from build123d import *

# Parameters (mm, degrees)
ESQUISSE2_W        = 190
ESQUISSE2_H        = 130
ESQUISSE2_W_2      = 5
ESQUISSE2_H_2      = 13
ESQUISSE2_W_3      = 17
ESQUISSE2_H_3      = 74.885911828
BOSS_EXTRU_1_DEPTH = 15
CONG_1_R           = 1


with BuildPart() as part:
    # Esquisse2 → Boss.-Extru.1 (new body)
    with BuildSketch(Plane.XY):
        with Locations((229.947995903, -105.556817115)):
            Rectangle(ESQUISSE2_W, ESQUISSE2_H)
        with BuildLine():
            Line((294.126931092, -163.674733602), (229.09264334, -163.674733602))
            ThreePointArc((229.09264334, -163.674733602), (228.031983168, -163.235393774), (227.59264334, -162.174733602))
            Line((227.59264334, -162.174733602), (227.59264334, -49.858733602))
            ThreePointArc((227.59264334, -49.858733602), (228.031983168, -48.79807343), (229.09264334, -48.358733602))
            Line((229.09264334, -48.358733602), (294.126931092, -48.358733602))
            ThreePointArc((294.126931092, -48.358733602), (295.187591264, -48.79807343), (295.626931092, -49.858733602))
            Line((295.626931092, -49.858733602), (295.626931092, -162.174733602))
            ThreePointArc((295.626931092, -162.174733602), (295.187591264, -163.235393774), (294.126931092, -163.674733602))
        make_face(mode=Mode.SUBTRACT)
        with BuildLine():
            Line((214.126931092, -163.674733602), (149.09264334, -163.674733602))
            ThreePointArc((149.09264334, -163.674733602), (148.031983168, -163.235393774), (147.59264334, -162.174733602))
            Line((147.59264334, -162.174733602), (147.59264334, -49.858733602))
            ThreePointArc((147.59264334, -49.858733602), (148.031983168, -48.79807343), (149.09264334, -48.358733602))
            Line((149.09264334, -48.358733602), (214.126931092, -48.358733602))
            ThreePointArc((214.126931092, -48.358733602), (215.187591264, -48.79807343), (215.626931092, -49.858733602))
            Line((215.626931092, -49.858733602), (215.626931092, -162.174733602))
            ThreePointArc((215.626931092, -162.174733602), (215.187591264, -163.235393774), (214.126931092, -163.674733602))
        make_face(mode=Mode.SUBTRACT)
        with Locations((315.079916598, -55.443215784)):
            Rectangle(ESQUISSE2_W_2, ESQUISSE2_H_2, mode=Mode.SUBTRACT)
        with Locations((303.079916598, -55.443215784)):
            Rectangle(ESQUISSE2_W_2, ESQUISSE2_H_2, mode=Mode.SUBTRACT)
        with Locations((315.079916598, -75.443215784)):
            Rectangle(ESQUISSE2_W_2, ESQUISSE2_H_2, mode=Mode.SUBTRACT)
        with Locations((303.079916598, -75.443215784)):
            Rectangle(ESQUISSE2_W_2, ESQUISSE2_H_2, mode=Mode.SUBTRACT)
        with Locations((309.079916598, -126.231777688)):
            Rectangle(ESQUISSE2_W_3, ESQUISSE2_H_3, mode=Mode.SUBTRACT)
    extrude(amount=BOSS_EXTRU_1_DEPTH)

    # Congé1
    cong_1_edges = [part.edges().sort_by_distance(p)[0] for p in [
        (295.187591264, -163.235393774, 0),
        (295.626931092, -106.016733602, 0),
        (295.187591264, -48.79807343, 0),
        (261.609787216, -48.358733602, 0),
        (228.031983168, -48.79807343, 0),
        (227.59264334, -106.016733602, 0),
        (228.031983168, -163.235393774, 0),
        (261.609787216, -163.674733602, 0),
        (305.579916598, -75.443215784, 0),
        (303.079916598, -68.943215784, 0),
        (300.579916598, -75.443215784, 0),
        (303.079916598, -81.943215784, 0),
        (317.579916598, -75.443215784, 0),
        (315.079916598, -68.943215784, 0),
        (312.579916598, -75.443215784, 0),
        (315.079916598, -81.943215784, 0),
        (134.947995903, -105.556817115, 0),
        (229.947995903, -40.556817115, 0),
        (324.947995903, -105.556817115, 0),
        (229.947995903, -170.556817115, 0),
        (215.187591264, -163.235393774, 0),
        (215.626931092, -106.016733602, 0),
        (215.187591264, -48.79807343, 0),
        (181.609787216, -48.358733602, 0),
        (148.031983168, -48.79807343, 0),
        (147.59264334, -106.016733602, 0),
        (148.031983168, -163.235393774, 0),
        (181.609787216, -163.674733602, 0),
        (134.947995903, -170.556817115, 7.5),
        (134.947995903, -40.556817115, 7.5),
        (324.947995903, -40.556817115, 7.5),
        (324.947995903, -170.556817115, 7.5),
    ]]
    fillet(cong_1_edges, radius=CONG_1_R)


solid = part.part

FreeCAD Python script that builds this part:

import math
import FreeCAD as App
import Part
import Sketcher

V = App.Vector


def edges_at(feature, points):
    """Names of the edges that pass closest to the given points."""
    edges = feature.Shape.Edges
    near = lambda p: min(range(len(edges)), key=lambda i: edges[i].distToShape(Part.Vertex(*p))[0])
    return sorted({f"Edge{near(p) + 1}" for p in points})


def add_polygon(sketch, points):
    """Adds a closed chain of lines whose ends are joined by coincident constraints."""
    first, n = sketch.GeometryCount, len(points)
    for a, b in zip(points, points[1:] + points[:1]):
        sketch.addGeometry(Part.LineSegment(App.Vector(*a, 0), App.Vector(*b, 0)), False)
    for i in range(n):
        sketch.addConstraint(Sketcher.Constraint("Coincident", first + i, 2, first + (i + 1) % n, 1))

doc = App.newDocument("Part")
body = doc.addObject("PartDesign::Body", "Body")

# Sketch on XY plane
sketch1 = body.newObject("Sketcher::SketchObject", "Sketch")
sketch1.AttachmentSupport = (doc.getObject("XY_Plane"), [""])
sketch1.MapMode = "FlatFace"
add_polygon(sketch1, [(134.9, -40.6), (134.9, -170.6), (324.9, -170.6), (324.9, -40.6)])  # lines 0-3
sketch1.addGeometry(Part.ArcOfCircle(Part.Circle(V(214.1, -162.2, 0), V(0, 0, 1), 1.5), math.radians(-90), math.radians(0)), False)  # 4
sketch1.addGeometry(Part.LineSegment(V(214.1, -163.7, 0), V(149.1, -163.7, 0)), False)  # 5
sketch1.addGeometry(Part.ArcOfCircle(Part.Circle(V(149.1, -162.2, 0), V(0, 0, 1), 1.5), math.radians(180), math.radians(270)), False)  # 6
sketch1.addGeometry(Part.LineSegment(V(147.6, -162.2, 0), V(147.6, -49.9, 0)), False)  # 7
sketch1.addGeometry(Part.ArcOfCircle(Part.Circle(V(149.1, -49.9, 0), V(0, 0, 1), 1.5), math.radians(90), math.radians(180)), False)  # 8
sketch1.addGeometry(Part.LineSegment(V(149.1, -48.4, 0), V(214.1, -48.4, 0)), False)  # 9
sketch1.addGeometry(Part.ArcOfCircle(Part.Circle(V(214.1, -49.9, 0), V(0, 0, 1), 1.5), math.radians(0), math.radians(90)), False)  # 10
sketch1.addGeometry(Part.LineSegment(V(215.6, -49.9, 0), V(215.6, -162.2, 0)), False)  # 11
sketch1.addGeometry(Part.ArcOfCircle(Part.Circle(V(294.1, -162.2, 0), V(0, 0, 1), 1.5), math.radians(-90), math.radians(0)), False)  # 12
sketch1.addGeometry(Part.LineSegment(V(294.1, -163.7, 0), V(229.1, -163.7, 0)), False)  # 13
sketch1.addGeometry(Part.ArcOfCircle(Part.Circle(V(229.1, -162.2, 0), V(0, 0, 1), 1.5), math.radians(180), math.radians(270)), False)  # 14
sketch1.addGeometry(Part.LineSegment(V(227.6, -162.2, 0), V(227.6, -49.9, 0)), False)  # 15
sketch1.addGeometry(Part.ArcOfCircle(Part.Circle(V(229.1, -49.9, 0), V(0, 0, 1), 1.5), math.radians(90), math.radians(180)), False)  # 16
sketch1.addGeometry(Part.LineSegment(V(229.1, -48.4, 0), V(294.1, -48.4, 0)), False)  # 17
sketch1.addGeometry(Part.ArcOfCircle(Part.Circle(V(294.1, -49.9, 0), V(0, 0, 1), 1.5), math.radians(0), math.radians(90)), False)  # 18
sketch1.addGeometry(Part.LineSegment(V(295.6, -49.9, 0), V(295.6, -162.2, 0)), False)  # 19
add_polygon(sketch1, [(317.6, -163.7), (300.6, -163.7), (300.6, -88.8), (317.6, -88.8)])  # lines 20-23
add_polygon(sketch1, [(305.6, -81.9), (300.6, -81.9), (300.6, -68.9), (305.6, -68.9)])  # lines 24-27
add_polygon(sketch1, [(317.6, -81.9), (312.6, -81.9), (312.6, -68.9), (317.6, -68.9)])  # lines 28-31
add_polygon(sketch1, [(305.6, -61.9), (300.6, -61.9), (300.6, -48.9), (305.6, -48.9)])  # lines 32-35
add_polygon(sketch1, [(317.6, -61.9), (312.6, -61.9), (312.6, -48.9), (317.6, -48.9)])  # lines 36-39
sketch1.addConstraint(Sketcher.Constraint("Tangent", 4, 1, 5, 1))
sketch1.addConstraint(Sketcher.Constraint("Tangent", 5, 2, 6, 2))
sketch1.addConstraint(Sketcher.Constraint("Tangent", 6, 1, 7, 1))
sketch1.addConstraint(Sketcher.Constraint("Tangent", 7, 2, 8, 2))
sketch1.addConstraint(Sketcher.Constraint("Tangent", 8, 1, 9, 1))
sketch1.addConstraint(Sketcher.Constraint("Tangent", 9, 2, 10, 2))
sketch1.addConstraint(Sketcher.Constraint("Tangent", 10, 1, 11, 1))
sketch1.addConstraint(Sketcher.Constraint("Tangent", 11, 2, 4, 2))
sketch1.addConstraint(Sketcher.Constraint("Tangent", 12, 1, 13, 1))
sketch1.addConstraint(Sketcher.Constraint("Tangent", 13, 2, 14, 2))
sketch1.addConstraint(Sketcher.Constraint("Tangent", 14, 1, 15, 1))
sketch1.addConstraint(Sketcher.Constraint("Tangent", 15, 2, 16, 2))
sketch1.addConstraint(Sketcher.Constraint("Tangent", 16, 1, 17, 1))
sketch1.addConstraint(Sketcher.Constraint("Tangent", 17, 2, 18, 2))
sketch1.addConstraint(Sketcher.Constraint("Tangent", 18, 1, 19, 1))
sketch1.addConstraint(Sketcher.Constraint("Tangent", 19, 2, 12, 2))
sketch1.addConstraint(Sketcher.Constraint("Vertical", 0))
sketch1.addConstraint(Sketcher.Constraint("Horizontal", 1))
sketch1.addConstraint(Sketcher.Constraint("Vertical", 2))
sketch1.addConstraint(Sketcher.Constraint("Horizontal", 3))
sketch1.addConstraint(Sketcher.Constraint("Horizontal", 5))
sketch1.addConstraint(Sketcher.Constraint("Vertical", 7))
sketch1.addConstraint(Sketcher.Constraint("Horizontal", 9))
sketch1.addConstraint(Sketcher.Constraint("Vertical", 11))
sketch1.addConstraint(Sketcher.Constraint("Horizontal", 13))
sketch1.addConstraint(Sketcher.Constraint("Vertical", 15))
sketch1.addConstraint(Sketcher.Constraint("Horizontal", 17))
sketch1.addConstraint(Sketcher.Constraint("Vertical", 19))
sketch1.addConstraint(Sketcher.Constraint("Horizontal", 20))
sketch1.addConstraint(Sketcher.Constraint("Vertical", 21))
sketch1.addConstraint(Sketcher.Constraint("Horizontal", 22))
sketch1.addConstraint(Sketcher.Constraint("Vertical", 23))
sketch1.addConstraint(Sketcher.Constraint("Horizontal", 24))
sketch1.addConstraint(Sketcher.Constraint("Vertical", 25))
sketch1.addConstraint(Sketcher.Constraint("Horizontal", 26))
sketch1.addConstraint(Sketcher.Constraint("Vertical", 27))
sketch1.addConstraint(Sketcher.Constraint("Horizontal", 28))
sketch1.addConstraint(Sketcher.Constraint("Vertical", 29))
sketch1.addConstraint(Sketcher.Constraint("Horizontal", 30))
sketch1.addConstraint(Sketcher.Constraint("Vertical", 31))
sketch1.addConstraint(Sketcher.Constraint("Horizontal", 32))
sketch1.addConstraint(Sketcher.Constraint("Vertical", 33))
sketch1.addConstraint(Sketcher.Constraint("Horizontal", 34))
sketch1.addConstraint(Sketcher.Constraint("Vertical", 35))
sketch1.addConstraint(Sketcher.Constraint("Horizontal", 36))
sketch1.addConstraint(Sketcher.Constraint("Vertical", 37))
sketch1.addConstraint(Sketcher.Constraint("Horizontal", 38))
sketch1.addConstraint(Sketcher.Constraint("Vertical", 39))
sketch1.addConstraint(Sketcher.Constraint("Equal", 4, 6))
sketch1.addConstraint(Sketcher.Constraint("Equal", 6, 8))
sketch1.addConstraint(Sketcher.Constraint("Equal", 8, 10))
sketch1.addConstraint(Sketcher.Constraint("Equal", 10, 12))
sketch1.addConstraint(Sketcher.Constraint("Equal", 12, 14))
sketch1.addConstraint(Sketcher.Constraint("Equal", 14, 16))
sketch1.addConstraint(Sketcher.Constraint("Equal", 16, 18))
sketch1.addConstraint(Sketcher.Constraint("Horizontal", 6, 3, 12, 3))
sketch1.addConstraint(Sketcher.Constraint("Horizontal", 10, 3, 16, 3))
sketch1.addConstraint(Sketcher.Constraint("Horizontal", 13, 2, 20, 2))
sketch1.addConstraint(Sketcher.Constraint("Horizontal", 27, 2, 28, 2))
sketch1.addConstraint(Sketcher.Constraint("Horizontal", 26, 2, 29, 2))
sketch1.addConstraint(Sketcher.Constraint("Horizontal", 35, 2, 36, 2))
sketch1.addConstraint(Sketcher.Constraint("Horizontal", 34, 2, 37, 2))
sketch1.addConstraint(Sketcher.Constraint("Vertical", 21, 2, 24, 2))
sketch1.addConstraint(Sketcher.Constraint("Vertical", 23, 2, 30, 2))
sketch1.addConstraint(Sketcher.Constraint("Vertical", 25, 2, 32, 2))
sketch1.addConstraint(Sketcher.Constraint("Vertical", 27, 2, 34, 2))
sketch1.addConstraint(Sketcher.Constraint("Vertical", 29, 2, 36, 2))
sketch1.addConstraint(Sketcher.Constraint("Vertical", 31, 2, 38, 2))
sketch1.addConstraint(Sketcher.Constraint("Equal", 9, 13))
sketch1.addConstraint(Sketcher.Constraint("Equal", 26, 28))
sketch1.addConstraint(Sketcher.Constraint("Equal", 31, 33))
sketch1.addConstraint(Sketcher.Constraint("Radius", 4, 1.5))
sketch1.addConstraint(Sketcher.Constraint("DistanceX", 1, 1, 1, 2, 190.0))
sketch1.addConstraint(Sketcher.Constraint("DistanceX", 20, 2, 20, 1, 17.0))
sketch1.addConstraint(Sketcher.Constraint("DistanceX", 24, 2, 24, 1, 5.0))
sketch1.addConstraint(Sketcher.Constraint("DistanceY", 0, 2, 0, 1, 130.0))
sketch1.addConstraint(Sketcher.Constraint("DistanceY", 25, 1, 25, 2, 13.0))
sketch1.addConstraint(Sketcher.Constraint("DistanceX", 4, 3, 12, 3, 80.0))
sketch1.addConstraint(Sketcher.Constraint("DistanceY", 25, 2, 32, 2, 7.0))
sketch1.addConstraint(Sketcher.Constraint("DistanceY", 7, 1, 7, 2, 112.316))
sketch1.addConstraint(Sketcher.Constraint("DistanceY", 21, 1, 21, 2, 74.885912))
sketch1.addConstraint(Sketcher.Constraint("DistanceY", 37, 2, 2, 2, 8.386399))
sketch1.addConstraint(Sketcher.Constraint("DistanceX", 5, 2, 5, 1, 65.034288))
sketch1.addConstraint(Sketcher.Constraint("DistanceX", -1, 1, 4, 3, 214.126931))
sketch1.addConstraint(Sketcher.Constraint("DistanceY", 21, 2, -1, 1, 88.788822))
sketch1.addConstraint(Sketcher.Constraint("DistanceX", 20, 2, 1, 2, 24.368079))
sketch1.addConstraint(Sketcher.Constraint("DistanceX", -1, 1, 0, 2, 134.947996))
sketch1.addConstraint(Sketcher.Constraint("DistanceY", 0, 2, -1, 1, 170.556817))
pad1 = body.newObject("PartDesign::Pad", "Pad")
pad1.Profile = sketch1
pad1.Length = 15
doc.recompute()

fillet = body.newObject("PartDesign::Fillet", "Fillet")
fillet.Base = (pad1, edges_at(pad1, [
    (295.188, -163.235, 0),
    (295.627, -106.017, 0),
    (295.188, -48.798, 0),
    (261.61, -48.359, 0),
    (228.032, -48.798, 0),
    (227.593, -106.017, 0),
    (228.032, -163.235, 0),
    (261.61, -163.675, 0),
    (305.58, -75.443, 0),
    (303.08, -68.943, 0),
    (300.58, -75.443, 0),
    (303.08, -81.943, 0),
    (317.58, -75.443, 0),
    (315.08, -68.943, 0),
    (312.58, -75.443, 0),
    (315.08, -81.943, 0),
    (134.948, -105.557, 0),
    (229.948, -40.557, 0),
    (324.948, -105.557, 0),
    (229.948, -170.557, 0),
    (215.188, -163.235, 0),
    (215.627, -106.017, 0),
    (215.188, -48.798, 0),
    (181.61, -48.359, 0),
    (148.032, -48.798, 0),
    (147.593, -106.017, 0),
    (148.032, -163.235, 0),
    (181.61, -163.675, 0),
    (134.948, -170.557, 7.5),
    (134.948, -40.557, 7.5),
    (324.948, -40.557, 7.5),
    (324.948, -170.557, 7.5),
]))
fillet.Radius = 1

doc.recompute()
